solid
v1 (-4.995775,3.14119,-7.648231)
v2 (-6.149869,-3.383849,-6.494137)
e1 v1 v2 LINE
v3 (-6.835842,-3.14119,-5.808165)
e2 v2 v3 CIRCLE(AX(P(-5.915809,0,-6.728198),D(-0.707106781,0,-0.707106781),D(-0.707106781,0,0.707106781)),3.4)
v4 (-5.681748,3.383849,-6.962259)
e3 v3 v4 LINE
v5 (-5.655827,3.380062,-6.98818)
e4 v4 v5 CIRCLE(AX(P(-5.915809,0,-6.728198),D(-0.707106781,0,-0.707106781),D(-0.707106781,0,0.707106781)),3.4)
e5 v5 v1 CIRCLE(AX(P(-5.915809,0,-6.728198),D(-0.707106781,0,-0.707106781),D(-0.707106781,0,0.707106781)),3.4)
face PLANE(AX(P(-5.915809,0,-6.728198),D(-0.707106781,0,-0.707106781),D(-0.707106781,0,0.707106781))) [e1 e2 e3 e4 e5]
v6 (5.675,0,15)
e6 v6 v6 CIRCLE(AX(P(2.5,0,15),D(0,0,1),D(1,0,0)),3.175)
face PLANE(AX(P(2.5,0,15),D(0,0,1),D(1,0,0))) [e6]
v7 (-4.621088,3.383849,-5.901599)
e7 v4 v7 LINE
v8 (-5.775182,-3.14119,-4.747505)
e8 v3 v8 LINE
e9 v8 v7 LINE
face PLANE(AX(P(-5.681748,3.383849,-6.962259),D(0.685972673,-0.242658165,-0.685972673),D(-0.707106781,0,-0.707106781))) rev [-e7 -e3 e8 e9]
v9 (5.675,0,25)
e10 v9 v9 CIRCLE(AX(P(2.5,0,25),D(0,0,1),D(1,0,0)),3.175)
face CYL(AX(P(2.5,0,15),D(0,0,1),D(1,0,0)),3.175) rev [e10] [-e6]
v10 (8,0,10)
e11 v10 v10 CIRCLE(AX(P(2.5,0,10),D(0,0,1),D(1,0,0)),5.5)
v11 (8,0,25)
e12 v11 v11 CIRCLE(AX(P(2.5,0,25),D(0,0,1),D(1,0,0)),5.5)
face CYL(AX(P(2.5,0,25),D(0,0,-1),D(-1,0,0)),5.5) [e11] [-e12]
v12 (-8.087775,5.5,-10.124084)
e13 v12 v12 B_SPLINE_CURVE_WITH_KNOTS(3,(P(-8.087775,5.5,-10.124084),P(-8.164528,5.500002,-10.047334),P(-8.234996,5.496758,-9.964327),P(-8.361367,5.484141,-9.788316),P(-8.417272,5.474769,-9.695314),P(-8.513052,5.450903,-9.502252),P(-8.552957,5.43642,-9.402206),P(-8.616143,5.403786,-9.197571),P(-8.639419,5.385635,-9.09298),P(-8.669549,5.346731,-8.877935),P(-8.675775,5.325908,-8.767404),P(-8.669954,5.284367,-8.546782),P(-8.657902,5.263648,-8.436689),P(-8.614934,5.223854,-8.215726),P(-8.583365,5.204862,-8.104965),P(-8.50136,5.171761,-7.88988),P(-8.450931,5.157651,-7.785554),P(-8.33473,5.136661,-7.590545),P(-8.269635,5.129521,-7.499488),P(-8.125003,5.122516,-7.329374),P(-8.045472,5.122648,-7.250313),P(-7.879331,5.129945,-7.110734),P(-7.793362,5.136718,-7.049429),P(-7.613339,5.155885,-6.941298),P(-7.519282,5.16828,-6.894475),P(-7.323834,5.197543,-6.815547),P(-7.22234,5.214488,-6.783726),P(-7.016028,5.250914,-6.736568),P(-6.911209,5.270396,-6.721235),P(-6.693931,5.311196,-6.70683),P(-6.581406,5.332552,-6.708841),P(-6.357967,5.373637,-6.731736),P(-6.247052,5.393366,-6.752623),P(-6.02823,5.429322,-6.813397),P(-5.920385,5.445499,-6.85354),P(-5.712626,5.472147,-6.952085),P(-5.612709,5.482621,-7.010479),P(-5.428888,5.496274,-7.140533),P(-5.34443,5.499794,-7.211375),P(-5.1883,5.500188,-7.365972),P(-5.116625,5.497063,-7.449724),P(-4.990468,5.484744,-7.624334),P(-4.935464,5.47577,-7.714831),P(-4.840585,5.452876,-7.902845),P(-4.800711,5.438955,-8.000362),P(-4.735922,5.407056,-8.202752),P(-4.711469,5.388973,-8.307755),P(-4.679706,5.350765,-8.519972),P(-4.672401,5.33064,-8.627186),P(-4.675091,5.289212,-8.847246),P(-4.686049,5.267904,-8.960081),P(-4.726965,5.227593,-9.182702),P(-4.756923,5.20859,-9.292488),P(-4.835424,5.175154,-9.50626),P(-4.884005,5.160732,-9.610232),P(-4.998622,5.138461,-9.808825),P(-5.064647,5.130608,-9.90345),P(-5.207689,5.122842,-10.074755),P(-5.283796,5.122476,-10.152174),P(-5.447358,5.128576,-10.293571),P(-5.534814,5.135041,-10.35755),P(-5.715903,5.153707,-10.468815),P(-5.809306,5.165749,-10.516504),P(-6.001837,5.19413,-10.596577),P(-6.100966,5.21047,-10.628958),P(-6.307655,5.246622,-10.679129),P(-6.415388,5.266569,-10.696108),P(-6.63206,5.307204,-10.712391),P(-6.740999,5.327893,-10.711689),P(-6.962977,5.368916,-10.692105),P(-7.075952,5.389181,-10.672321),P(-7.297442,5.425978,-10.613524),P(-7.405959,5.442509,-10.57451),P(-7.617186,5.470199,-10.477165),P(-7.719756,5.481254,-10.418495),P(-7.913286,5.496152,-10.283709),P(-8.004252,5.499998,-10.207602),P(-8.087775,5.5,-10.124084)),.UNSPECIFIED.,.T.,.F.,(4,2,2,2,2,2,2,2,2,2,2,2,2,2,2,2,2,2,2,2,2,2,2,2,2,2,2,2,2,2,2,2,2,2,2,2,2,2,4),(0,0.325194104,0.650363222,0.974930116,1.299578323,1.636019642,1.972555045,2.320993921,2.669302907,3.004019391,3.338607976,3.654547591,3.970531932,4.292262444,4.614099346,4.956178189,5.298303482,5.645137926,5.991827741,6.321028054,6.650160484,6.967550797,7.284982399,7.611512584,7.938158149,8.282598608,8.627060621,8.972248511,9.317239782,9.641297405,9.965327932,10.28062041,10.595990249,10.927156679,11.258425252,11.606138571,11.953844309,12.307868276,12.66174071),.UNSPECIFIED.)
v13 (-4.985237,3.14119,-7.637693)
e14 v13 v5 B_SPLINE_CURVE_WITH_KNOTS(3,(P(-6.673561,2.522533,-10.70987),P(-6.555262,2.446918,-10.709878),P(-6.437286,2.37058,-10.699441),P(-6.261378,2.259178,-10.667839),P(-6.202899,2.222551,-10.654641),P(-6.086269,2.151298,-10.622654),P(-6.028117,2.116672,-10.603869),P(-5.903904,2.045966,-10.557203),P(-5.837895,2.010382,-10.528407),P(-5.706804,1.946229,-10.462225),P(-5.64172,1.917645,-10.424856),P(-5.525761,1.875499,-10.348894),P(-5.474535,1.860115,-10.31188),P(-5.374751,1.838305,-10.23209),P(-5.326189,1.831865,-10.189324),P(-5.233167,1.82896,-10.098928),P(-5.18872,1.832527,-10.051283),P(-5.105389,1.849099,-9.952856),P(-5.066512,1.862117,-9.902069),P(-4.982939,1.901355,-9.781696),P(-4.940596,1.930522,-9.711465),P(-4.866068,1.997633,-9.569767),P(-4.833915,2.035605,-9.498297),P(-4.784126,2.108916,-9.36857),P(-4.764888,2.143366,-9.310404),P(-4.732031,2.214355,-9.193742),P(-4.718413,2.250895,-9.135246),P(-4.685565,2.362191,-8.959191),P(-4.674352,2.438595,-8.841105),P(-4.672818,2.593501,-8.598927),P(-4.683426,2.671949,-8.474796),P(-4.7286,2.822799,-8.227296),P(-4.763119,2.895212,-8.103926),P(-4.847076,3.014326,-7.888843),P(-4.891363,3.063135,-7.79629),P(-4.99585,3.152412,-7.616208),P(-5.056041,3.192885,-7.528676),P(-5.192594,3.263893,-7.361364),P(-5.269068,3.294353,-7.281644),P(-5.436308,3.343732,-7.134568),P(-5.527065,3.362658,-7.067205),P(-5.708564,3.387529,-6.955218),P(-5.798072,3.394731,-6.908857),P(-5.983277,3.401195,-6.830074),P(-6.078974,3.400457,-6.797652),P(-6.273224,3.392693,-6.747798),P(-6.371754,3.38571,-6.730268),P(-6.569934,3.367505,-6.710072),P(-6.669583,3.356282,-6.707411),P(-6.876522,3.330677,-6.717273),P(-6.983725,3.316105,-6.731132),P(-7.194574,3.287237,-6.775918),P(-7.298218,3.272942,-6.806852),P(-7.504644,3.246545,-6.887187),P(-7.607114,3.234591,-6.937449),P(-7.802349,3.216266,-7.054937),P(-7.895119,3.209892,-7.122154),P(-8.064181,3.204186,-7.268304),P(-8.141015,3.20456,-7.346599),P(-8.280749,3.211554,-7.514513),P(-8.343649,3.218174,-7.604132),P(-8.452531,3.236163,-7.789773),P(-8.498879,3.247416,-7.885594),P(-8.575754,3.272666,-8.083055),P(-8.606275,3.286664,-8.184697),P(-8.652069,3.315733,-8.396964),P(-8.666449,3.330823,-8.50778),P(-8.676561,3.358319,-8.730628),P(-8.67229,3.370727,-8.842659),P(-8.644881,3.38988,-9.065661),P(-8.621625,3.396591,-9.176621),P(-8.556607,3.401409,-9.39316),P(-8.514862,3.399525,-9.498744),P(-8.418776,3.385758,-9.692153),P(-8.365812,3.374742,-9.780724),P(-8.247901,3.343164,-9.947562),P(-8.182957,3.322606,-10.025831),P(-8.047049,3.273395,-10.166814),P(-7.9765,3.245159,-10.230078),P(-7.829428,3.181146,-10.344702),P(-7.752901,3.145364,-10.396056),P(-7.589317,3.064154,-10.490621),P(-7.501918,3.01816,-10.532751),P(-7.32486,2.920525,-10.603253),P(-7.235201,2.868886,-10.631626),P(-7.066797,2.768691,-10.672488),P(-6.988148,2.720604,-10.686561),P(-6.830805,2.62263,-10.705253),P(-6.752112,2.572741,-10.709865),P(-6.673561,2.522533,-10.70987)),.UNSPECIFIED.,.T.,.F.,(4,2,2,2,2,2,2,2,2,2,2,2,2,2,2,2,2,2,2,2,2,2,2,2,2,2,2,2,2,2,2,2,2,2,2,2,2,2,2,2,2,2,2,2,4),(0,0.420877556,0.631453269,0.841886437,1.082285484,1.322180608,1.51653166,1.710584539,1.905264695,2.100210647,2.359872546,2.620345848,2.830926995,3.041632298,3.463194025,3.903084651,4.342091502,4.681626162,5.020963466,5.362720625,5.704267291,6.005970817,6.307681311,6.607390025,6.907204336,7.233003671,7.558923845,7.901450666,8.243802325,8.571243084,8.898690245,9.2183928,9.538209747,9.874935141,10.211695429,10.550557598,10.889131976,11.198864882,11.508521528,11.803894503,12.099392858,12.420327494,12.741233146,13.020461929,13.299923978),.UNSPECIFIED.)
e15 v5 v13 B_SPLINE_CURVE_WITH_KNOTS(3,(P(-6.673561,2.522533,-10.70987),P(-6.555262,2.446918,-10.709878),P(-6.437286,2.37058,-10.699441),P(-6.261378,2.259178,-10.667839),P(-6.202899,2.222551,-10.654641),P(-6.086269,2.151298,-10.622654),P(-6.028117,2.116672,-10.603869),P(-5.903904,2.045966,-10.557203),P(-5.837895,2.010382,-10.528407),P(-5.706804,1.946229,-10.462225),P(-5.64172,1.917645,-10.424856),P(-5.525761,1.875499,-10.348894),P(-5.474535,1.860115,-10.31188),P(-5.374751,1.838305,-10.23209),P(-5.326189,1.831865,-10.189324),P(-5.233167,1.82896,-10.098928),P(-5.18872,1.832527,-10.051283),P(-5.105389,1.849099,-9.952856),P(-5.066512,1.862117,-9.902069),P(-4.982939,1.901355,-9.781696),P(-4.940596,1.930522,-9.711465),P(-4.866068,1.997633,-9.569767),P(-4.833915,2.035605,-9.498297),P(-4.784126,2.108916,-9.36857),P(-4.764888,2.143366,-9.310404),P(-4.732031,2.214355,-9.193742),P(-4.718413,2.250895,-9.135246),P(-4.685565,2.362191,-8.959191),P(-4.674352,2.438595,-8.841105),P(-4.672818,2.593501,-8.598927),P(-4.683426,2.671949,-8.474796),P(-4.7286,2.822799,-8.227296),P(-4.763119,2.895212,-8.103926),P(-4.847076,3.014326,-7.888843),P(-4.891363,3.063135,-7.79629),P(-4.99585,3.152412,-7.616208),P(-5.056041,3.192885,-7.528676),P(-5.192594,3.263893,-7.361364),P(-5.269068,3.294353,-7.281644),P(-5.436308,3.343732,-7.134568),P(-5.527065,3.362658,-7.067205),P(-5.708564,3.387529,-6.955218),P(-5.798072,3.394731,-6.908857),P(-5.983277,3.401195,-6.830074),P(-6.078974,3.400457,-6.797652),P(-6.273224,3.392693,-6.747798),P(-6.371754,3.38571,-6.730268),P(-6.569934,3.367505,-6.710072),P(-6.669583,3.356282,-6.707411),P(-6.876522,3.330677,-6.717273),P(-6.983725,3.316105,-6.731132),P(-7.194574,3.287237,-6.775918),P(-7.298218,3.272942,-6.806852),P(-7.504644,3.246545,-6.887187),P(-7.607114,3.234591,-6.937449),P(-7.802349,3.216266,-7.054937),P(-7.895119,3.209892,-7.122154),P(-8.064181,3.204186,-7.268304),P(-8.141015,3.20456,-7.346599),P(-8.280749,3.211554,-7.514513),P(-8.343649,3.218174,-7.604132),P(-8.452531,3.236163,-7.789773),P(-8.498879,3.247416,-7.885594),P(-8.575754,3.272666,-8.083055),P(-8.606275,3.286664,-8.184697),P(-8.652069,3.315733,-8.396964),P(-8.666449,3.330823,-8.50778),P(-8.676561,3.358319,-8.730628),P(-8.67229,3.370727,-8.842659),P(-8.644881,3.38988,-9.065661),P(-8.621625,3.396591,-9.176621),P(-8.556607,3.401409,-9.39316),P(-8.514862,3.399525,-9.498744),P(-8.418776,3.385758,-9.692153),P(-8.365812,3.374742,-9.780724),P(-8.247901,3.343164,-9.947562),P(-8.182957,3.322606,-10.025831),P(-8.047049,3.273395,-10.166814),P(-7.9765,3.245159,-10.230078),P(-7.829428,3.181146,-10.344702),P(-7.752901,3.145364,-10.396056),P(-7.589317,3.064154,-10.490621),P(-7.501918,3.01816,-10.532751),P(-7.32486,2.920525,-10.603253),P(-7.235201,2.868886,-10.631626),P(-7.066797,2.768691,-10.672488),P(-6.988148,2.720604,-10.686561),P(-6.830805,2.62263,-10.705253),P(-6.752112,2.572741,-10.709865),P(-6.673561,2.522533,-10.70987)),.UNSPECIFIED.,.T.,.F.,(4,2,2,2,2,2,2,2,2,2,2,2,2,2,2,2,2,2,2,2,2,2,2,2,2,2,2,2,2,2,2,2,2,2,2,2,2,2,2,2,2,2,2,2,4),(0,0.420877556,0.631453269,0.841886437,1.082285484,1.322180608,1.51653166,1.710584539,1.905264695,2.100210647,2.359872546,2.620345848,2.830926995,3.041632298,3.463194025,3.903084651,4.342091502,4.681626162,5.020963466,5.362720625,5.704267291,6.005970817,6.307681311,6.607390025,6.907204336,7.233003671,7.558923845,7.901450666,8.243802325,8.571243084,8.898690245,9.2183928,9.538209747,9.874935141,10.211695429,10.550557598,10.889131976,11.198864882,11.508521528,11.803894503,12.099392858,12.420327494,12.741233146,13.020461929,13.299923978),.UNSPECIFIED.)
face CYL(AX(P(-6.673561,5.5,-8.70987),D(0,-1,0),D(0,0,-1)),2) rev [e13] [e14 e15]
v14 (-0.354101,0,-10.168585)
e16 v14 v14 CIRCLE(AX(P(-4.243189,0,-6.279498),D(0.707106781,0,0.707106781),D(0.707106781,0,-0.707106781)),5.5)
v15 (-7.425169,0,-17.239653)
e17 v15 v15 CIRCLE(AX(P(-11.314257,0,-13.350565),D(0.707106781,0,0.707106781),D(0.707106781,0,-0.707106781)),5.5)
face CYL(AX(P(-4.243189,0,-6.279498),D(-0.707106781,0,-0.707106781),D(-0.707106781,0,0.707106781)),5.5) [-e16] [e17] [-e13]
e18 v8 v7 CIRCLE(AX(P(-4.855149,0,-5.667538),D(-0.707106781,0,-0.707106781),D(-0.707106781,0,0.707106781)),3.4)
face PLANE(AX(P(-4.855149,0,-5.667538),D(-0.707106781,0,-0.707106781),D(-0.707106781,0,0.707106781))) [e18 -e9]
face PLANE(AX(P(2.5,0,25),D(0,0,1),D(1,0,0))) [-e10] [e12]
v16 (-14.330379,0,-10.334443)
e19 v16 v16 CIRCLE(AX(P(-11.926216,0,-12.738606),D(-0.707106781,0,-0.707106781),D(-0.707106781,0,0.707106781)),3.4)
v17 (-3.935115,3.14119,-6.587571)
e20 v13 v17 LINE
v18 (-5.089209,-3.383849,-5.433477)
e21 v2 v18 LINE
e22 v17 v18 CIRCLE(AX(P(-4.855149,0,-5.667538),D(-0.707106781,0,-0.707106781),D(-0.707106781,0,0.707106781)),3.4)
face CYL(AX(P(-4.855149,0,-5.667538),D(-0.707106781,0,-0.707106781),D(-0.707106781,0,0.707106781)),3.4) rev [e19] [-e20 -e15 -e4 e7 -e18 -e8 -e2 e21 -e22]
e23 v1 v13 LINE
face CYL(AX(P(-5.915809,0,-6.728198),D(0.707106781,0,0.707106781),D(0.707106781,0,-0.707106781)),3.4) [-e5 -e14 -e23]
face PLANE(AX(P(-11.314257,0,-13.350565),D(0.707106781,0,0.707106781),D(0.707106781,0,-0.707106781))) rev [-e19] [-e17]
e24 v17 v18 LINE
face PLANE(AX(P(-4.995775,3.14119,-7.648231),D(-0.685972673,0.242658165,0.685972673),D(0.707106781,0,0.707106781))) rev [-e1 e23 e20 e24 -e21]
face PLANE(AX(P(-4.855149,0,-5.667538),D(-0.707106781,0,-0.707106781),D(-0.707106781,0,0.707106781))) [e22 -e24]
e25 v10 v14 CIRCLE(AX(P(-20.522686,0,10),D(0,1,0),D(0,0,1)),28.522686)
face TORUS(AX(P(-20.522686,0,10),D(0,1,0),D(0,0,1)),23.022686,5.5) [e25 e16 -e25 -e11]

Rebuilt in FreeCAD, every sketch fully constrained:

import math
import FreeCAD as App
import Part
import Sketcher

V = App.Vector
Q = App.Units.Quantity

doc = App.newDocument("Part")
body = doc.addObject("PartDesign::Body", "Body")

# Sketch on XY plane
sketch1 = body.newObject("Sketcher::SketchObject", "Sketch")
sketch1.AttachmentSupport = (doc.getObject("XY_Plane"), [""])
sketch1.MapMode = "FlatFace"
sketch1.AttachmentOffset = App.Placement(V(0, 0, 25), App.Rotation())
sketch1.addGeometry(Part.Circle(V(2, 0, 0), V(0, 0, 1), 6), False)
sketch1.addConstraint([
    Sketcher.Constraint("PointOnObject", 0, 3, -1),
    Sketcher.Constraint("Diameter", 0, 11.0),
    Sketcher.Constraint("DistanceX", -1, 1, 0, 3, 2.5),
])

# Sketch on XZ plane
sketch2 = body.newObject("Sketcher::SketchObject", "Sketch001")
sketch2.AttachmentSupport = (doc.getObject("XZ_Plane"), [""])
sketch2.MapMode = "FlatFace"
sketch2.addGeometry([
    Part.LineSegment(V(2, 25, 0), V(2, 10, 0)),
    Part.ArcOfCircle(Part.Circle(V(-21, 10, 0), V(0, 0, 1), 23), math.radians(-45), math.radians(0)),
    Part.LineSegment(V(-4, -6, 0), V(-11, -13, 0)),
], False)
sketch2.addConstraint([
    Sketcher.Constraint("Tangent", 0, 2, 1, 2),
    Sketcher.Constraint("Tangent", 1, 1, 2, 1),
    Sketcher.Constraint("Vertical", 0),
    Sketcher.Constraint("DistanceY", 0, 2, 0, 1, 15.0),
    Sketcher.Constraint("Angle", 2, Q("-135 deg")),
    Sketcher.Constraint("Distance", 2, 10.0),
    Sketcher.Constraint("DistanceY", -1, 1, 1, 3, 10.0),
    Sketcher.Constraint("DistanceX", -1, 1, 0, 1, 2.5),
    Sketcher.Constraint("Radius", 1, 23.022686),
])
doc.recompute()

additivepipe = body.newObject("PartDesign::AdditivePipe", "AdditivePipe")
additivepipe.Profile = sketch1
additivepipe.Spine = (sketch2, ["Edge1", "Edge2", "Edge3"])

# Sketch on XY plane
sketch3 = body.newObject("Sketcher::SketchObject", "Sketch002")
sketch3.AttachmentSupport = (doc.getObject("XY_Plane"), [""])
sketch3.MapMode = "FlatFace"
sketch3.AttachmentOffset = App.Placement(V(0, 0, 25), App.Rotation())
sketch3.addGeometry(Part.Circle(V(2.5, 0, 0), V(0, 0, 1), 3.2), False)
sketch3.addConstraint([
    Sketcher.Constraint("PointOnObject", 0, 3, -1),
    Sketcher.Constraint("Diameter", 0, 6.35),
    Sketcher.Constraint("DistanceX", -1, 1, 0, 3, 2.5),
])
pocket1 = body.newObject("PartDesign::Pocket", "Pocket")
pocket1.Profile = sketch3
pocket1.Length = 10

# Sketch on an angled plane
sketch4 = body.newObject("Sketcher::SketchObject", "Sketch003")
sketch4.Placement = App.Placement(V(-12.332411, 0, -12.332411), App.Rotation(V(-0.707106781, 0, 0.707106781), V(0, 0.999999999, 0), V(-0.707106781, 0, -0.707106781), "ZXY"))
sketch4.addGeometry(Part.Circle(V(-0.6, 0, 0), V(0, 0, 1), 3.4), False)
sketch4.addConstraint([
    Sketcher.Constraint("PointOnObject", 0, 3, -1),
    Sketcher.Constraint("Diameter", 0, 6.8),
    Sketcher.Constraint("DistanceX", 0, 3, -1, 1, 0.574446),
])
pocket2 = body.newObject("PartDesign::Pocket", "Pocket001")
pocket2.Profile = sketch4
pocket2.Length = 10

# Sketch on XZ plane
sketch5 = body.newObject("Sketcher::SketchObject", "Sketch004")
sketch5.AttachmentSupport = (doc.getObject("XZ_Plane"), [""])
sketch5.MapMode = "FlatFace"
sketch5.addGeometry(Part.Circle(V(-6.7, -8.7, 0), V(0, 0, 1), 2), False)
sketch5.addConstraint([
    Sketcher.Constraint("Diameter", 0, 4.0),
    Sketcher.Constraint("DistanceX", 0, 3, -1, 1, 6.673561),
    Sketcher.Constraint("DistanceY", 0, 3, -1, 1, 8.70987),
])
pocket3 = body.newObject("PartDesign::Pocket", "Pocket002")
pocket3.Profile = sketch5
pocket3.Type = "ThroughAll"

# Sketch on an angled plane
sketch6 = body.newObject("Sketcher::SketchObject", "Sketch005")
sketch6.Placement = App.Placement(V(-5.261343, 0, -5.261343), App.Rotation(V(-0.707106781, 0, 0.707106781), V(0, 0.999999999, 0), V(-0.707106781, 0, -0.707106781), "ZXY"))
sketch6.addGeometry([
    Part.LineSegment(V(0.7, -3.1, 0), V(-0.9, 3.4, 0)),
    Part.ArcOfCircle(Part.Circle(V(-0.6, 0, 0), V(0, 0, 1), 3.4), math.radians(95.59), math.radians(112.5)),
    Part.LineSegment(V(-1.9, 3.1, 0), V(-0.2, -3.4, 0)),
    Part.ArcOfCircle(Part.Circle(V(-0.6, 0, 0), V(0, 0, 1), 3.4), math.radians(-84.41), math.radians(-67.5)),
], False)
sketch6.addConstraint([
    Sketcher.Constraint("Coincident", 0, 2, 1, 1),
    Sketcher.Constraint("Coincident", 1, 2, 2, 1),
    Sketcher.Constraint("Coincident", 2, 2, 3, 1),
    Sketcher.Constraint("Coincident", 3, 2, 0, 1),
    Sketcher.Constraint("Coincident", 3, 3, 1, 3),
    Sketcher.Constraint("Equal", 1, 3),
    Sketcher.Constraint("PointOnObject", 1, 3, -1),
    Sketcher.Constraint("Parallel", 0, 2),
    Sketcher.Constraint("Equal", 0, 2),
    Sketcher.Constraint("Radius", 1, 3.4),
    Sketcher.Constraint("Distance", 0, 6.726069),
    Sketcher.Constraint("DistanceY", -1, 1, 0, 2, 3.383849),
    Sketcher.Constraint("DistanceX", 1, 2, -1, 1, 1.87557),
])
pad1 = body.newObject("PartDesign::Pad", "Pad")
pad1.Profile = sketch6
pad1.Length = 1.5

doc.recompute()
